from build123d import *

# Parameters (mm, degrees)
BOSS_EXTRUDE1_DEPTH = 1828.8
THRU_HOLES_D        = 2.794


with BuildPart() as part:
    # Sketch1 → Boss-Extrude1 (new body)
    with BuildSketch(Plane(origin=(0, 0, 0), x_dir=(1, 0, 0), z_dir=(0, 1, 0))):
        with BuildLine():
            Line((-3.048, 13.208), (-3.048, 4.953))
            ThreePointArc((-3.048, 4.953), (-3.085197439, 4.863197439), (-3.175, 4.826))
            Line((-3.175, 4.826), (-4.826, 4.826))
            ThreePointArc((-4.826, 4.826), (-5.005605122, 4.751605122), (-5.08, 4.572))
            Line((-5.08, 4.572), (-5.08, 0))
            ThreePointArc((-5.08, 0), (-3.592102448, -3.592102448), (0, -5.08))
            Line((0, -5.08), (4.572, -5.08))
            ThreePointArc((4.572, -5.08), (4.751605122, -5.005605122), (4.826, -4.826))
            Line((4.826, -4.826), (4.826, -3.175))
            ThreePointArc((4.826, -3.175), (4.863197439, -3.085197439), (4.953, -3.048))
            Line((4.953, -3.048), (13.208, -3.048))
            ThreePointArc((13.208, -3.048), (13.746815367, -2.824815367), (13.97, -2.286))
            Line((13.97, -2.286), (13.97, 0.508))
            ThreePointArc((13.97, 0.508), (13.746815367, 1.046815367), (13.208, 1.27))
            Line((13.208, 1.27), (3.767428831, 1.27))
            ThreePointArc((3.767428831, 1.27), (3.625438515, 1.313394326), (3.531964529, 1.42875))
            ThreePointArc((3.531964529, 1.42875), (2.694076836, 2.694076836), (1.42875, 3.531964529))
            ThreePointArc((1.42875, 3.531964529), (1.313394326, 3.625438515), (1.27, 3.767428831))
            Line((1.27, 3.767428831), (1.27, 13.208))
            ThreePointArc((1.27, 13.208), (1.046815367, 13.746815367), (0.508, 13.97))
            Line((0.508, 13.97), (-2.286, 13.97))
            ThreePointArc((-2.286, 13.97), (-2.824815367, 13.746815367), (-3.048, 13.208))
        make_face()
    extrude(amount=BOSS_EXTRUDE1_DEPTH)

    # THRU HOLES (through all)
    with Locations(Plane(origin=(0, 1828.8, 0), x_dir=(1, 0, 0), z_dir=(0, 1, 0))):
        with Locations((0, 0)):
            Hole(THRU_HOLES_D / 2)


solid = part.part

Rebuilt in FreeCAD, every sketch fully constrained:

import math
import FreeCAD as App
import Part
import Sketcher
Q = App.Units.Quantity

doc = App.newDocument("Part")
params = doc.addObject("Spreadsheet::Sheet", "Params")
for row, (alias, value) in enumerate([
    ("sketch1_radius", "0.2 in"),
    ("sketch1_radius2", "0.01 in"),
    ("sketch1_radius3", "0.03 in"),
    ("sketch1_radius4", "0.15 in"),
    ("sketch1_radius5", "0.005 in"),
    ("pad1_length", "72 in"),
    ("sketch2_diameter", "0.11 in"),
    ("hole_diameter", "0.11 in"),
], start=1):
    params.set(f"A{row}", alias)
    params.set(f"B{row}", "=" + value)
    params.setAlias(f"B{row}", alias)

body = doc.addObject("PartDesign::Body", "Body")

sketch1 = body.newObject("Sketcher::SketchObject", "Sketch")
sketch1.AttachmentSupport = (doc.getObject("XZ_Plane"), [""])
sketch1.MapMode = "FlatFace"
sketch1.addGeometry([
    Part.LineSegment(App.Vector(-3.048, -13.208, 0), App.Vector(-3.048, -4.953, 0)),
    Part.ArcOfCircle(Part.Circle(App.Vector(-3.175, -4.953, 0), App.Vector(0, 0, 1), 0.127), math.radians(0), math.radians(90)),
    Part.LineSegment(App.Vector(-3.175, -4.826, 0), App.Vector(-4.826, -4.826, 0)),
    Part.ArcOfCircle(Part.Circle(App.Vector(-4.826, -4.572, 0), App.Vector(0, 0, 1), 0.254), math.radians(-180), math.radians(-90)),
    Part.LineSegment(App.Vector(-5.08, -4.572, 0), App.Vector(-5.08, 0, 0)),
    Part.ArcOfCircle(Part.Circle(App.Vector(0, 0, 0), App.Vector(0, 0, 1), 5.08), math.radians(90), math.radians(180)),
    Part.LineSegment(App.Vector(0, 5.08, 0), App.Vector(4.572, 5.08, 0)),
    Part.ArcOfCircle(Part.Circle(App.Vector(4.572, 4.826, 0), App.Vector(0, 0, 1), 0.254), math.radians(0), math.radians(90)),
    Part.LineSegment(App.Vector(4.826, 4.826, 0), App.Vector(4.826, 3.175, 0)),
    Part.ArcOfCircle(Part.Circle(App.Vector(4.953, 3.175, 0), App.Vector(0, 0, 1), 0.127), math.radians(-180), math.radians(-90)),
    Part.LineSegment(App.Vector(4.953, 3.048, 0), App.Vector(13.208, 3.048, 0)),
    Part.ArcOfCircle(Part.Circle(App.Vector(13.208, 2.286, 0), App.Vector(0, 0, 1), 0.762), math.radians(0), math.radians(90)),
    Part.LineSegment(App.Vector(13.97, 2.286, 0), App.Vector(13.97, -0.508, 0)),
    Part.ArcOfCircle(Part.Circle(App.Vector(13.208, -0.508, 0), App.Vector(0, 0, 1), 0.762), math.radians(-90), math.radians(0)),
    Part.LineSegment(App.Vector(13.208, -1.27, 0), App.Vector(3.767429, -1.27, 0)),
    Part.ArcOfCircle(Part.Circle(App.Vector(3.767429, -1.524, 0), App.Vector(0, 0, 1), 0.254), math.radians(90), math.radians(157.975687)),
    Part.ArcOfCircle(Part.Circle(App.Vector(0, 0, 0), App.Vector(0, 0, 1), 3.81), math.radians(-67.975687), math.radians(-22.024313)),
    Part.ArcOfCircle(Part.Circle(App.Vector(1.524, -3.767429, 0), App.Vector(0, 0, 1), 0.254), math.radians(112.024313), math.radians(180)),
    Part.LineSegment(App.Vector(1.27, -3.767429, 0), App.Vector(1.27, -13.208, 0)),
    Part.ArcOfCircle(Part.Circle(App.Vector(0.508, -13.208, 0), App.Vector(0, 0, 1), 0.762), math.radians(-90), math.radians(0)),
    Part.LineSegment(App.Vector(0.508, -13.97, 0), App.Vector(-2.286, -13.97, 0)),
    Part.ArcOfCircle(Part.Circle(App.Vector(-2.286, -13.208, 0), App.Vector(0, 0, 1), 0.762), math.radians(-180), math.radians(-90)),
], False)
sketch1.addConstraint([
    Sketcher.Constraint("Tangent", 0, 2, 1, 1),
    Sketcher.Constraint("Tangent", 1, 2, 2, 1),
    Sketcher.Constraint("Tangent", 2, 2, 3, 2),
    Sketcher.Constraint("Tangent", 3, 1, 4, 1),
    Sketcher.Constraint("Tangent", 4, 2, 5, 2),
    Sketcher.Constraint("Tangent", 5, 1, 6, 1),
    Sketcher.Constraint("Tangent", 6, 2, 7, 2),
    Sketcher.Constraint("Tangent", 7, 1, 8, 1),
    Sketcher.Constraint("Tangent", 8, 2, 9, 1),
    Sketcher.Constraint("Tangent", 9, 2, 10, 1),
    Sketcher.Constraint("Tangent", 10, 2, 11, 2),
    Sketcher.Constraint("Tangent", 11, 1, 12, 1),
    Sketcher.Constraint("Tangent", 12, 2, 13, 2),
    Sketcher.Constraint("Tangent", 13, 1, 14, 1),
    Sketcher.Constraint("Tangent", 14, 2, 15, 1),
    Sketcher.Constraint("Tangent", 15, 2, 16, 2),
    Sketcher.Constraint("Tangent", 16, 1, 17, 1),
    Sketcher.Constraint("Tangent", 17, 2, 18, 1),
    Sketcher.Constraint("Tangent", 18, 2, 19, 2),
    Sketcher.Constraint("Tangent", 19, 1, 20, 1),
    Sketcher.Constraint("Tangent", 20, 2, 21, 2),
    Sketcher.Constraint("Tangent", 21, 1, 0, 1),
    Sketcher.Constraint("Vertical", 0),
    Sketcher.Constraint("Horizontal", 2),
    Sketcher.Constraint("Vertical", 4),
    Sketcher.Constraint("Horizontal", 6),
    Sketcher.Constraint("Vertical", 8),
    Sketcher.Constraint("Horizontal", 10),
    Sketcher.Constraint("Vertical", 12),
    Sketcher.Constraint("Horizontal", 14),
    Sketcher.Constraint("Vertical", 18),
    Sketcher.Constraint("Horizontal", 20),
    Sketcher.Constraint("Coincident", 5, 3, -1, 1),
    Sketcher.Constraint("Coincident", 16, 3, -1, 1),
    Sketcher.Constraint("Equal", 3, 7),
    Sketcher.Constraint("Equal", 1, 9),
    Sketcher.Constraint("Equal", 11, 13),
    Sketcher.Constraint("Equal", 7, 15),
    Sketcher.Constraint("Equal", 15, 17),
    Sketcher.Constraint("Equal", 13, 19),
    Sketcher.Constraint("Equal", 19, 21),
    Sketcher.Constraint("Symmetric", 2, 2, 7, 1, -1, 1),
    Sketcher.Constraint("Equal", 10, 0),
    Sketcher.Constraint("Equal", 2, 8),
    Sketcher.Constraint("Equal", 20, 12),
    Sketcher.Constraint("Radius", 5, Q("0.2 in")),
    Sketcher.Constraint("Radius", 3, Q("0.01 in")),
    Sketcher.Constraint("Radius", 11, Q("0.03 in")),
    Sketcher.Constraint("Radius", 16, Q("0.15 in")),
    Sketcher.Constraint("Radius", 1, Q("0.005 in")),
    Sketcher.Constraint("DistanceX", 20, 2, 20, 1, Q("0.11 in")),
    Sketcher.Constraint("DistanceY", 11, 3, 7, 3, Q("0.1 in")),
    Sketcher.Constraint("DistanceX", 10, 1, 10, 2, Q("0.325 in")),
])
sketch1.setExpression("Constraints[45]", "Params.sketch1_radius")
sketch1.setExpression("Constraints[46]", "Params.sketch1_radius2")
sketch1.setExpression("Constraints[47]", "Params.sketch1_radius3")
sketch1.setExpression("Constraints[48]", "Params.sketch1_radius4")
sketch1.setExpression("Constraints[49]", "Params.sketch1_radius5")
pad1 = body.newObject("PartDesign::Pad", "Pad")
pad1.Profile = sketch1
pad1.setExpression("Length", "Params.pad1_length")
pad1.Reversed = True

sketch2 = body.newObject("Sketcher::SketchObject", "Sketch001")
sketch2.AttachmentSupport = (doc.getObject("XZ_Plane"), [""])
sketch2.MapMode = "FlatFace"
sketch2.AttachmentOffset = App.Placement(App.Vector(0, 0, -72 * 25.4), App.Rotation())
sketch2.addGeometry(Part.Circle(App.Vector(0, 0, 0), App.Vector(0, 0, 1), 1.397), False)
sketch2.addConstraint([
    Sketcher.Constraint("Coincident", 0, 3, -1, 1),
    Sketcher.Constraint("Diameter", 0, Q("0.11 in")),
])
sketch2.setExpression("Constraints[1]", "Params.sketch2_diameter")
doc.recompute()
hole = body.newObject("PartDesign::Hole", "Hole")
hole.Profile = sketch2
hole.ThreadType = "None"
hole.setExpression("Diameter", "Params.hole_diameter")
hole.DepthType = "ThroughAll"
hole.Reversed = True

doc.recompute()
